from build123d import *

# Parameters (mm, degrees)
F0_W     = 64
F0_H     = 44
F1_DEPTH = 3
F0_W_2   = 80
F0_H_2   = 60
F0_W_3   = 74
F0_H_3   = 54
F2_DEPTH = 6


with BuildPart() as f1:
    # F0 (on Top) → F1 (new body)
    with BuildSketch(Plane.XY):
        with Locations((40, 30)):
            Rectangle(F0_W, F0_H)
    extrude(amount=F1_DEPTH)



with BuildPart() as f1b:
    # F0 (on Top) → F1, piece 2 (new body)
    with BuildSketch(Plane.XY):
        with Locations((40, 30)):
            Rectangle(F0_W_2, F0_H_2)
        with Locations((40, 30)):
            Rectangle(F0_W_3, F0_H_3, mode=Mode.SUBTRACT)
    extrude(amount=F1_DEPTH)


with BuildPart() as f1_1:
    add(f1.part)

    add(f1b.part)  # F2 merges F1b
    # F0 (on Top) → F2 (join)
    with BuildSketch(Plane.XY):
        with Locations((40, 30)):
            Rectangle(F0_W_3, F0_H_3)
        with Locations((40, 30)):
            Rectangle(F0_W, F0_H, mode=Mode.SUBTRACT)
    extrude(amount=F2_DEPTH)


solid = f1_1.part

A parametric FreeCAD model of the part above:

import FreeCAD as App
import Part
import Sketcher
Q = App.Units.Quantity

doc = App.newDocument("Part")
body = doc.addObject("PartDesign::Body", "Body")

sketch1 = body.newObject("Sketcher::SketchObject", "Sketch")
sketch1.AttachmentSupport = (doc.getObject("XY_Plane"), [""])
sketch1.MapMode = "FlatFace"
sketch1.addGeometry([
    Part.LineSegment(App.Vector(8, 52, 0), App.Vector(8, 8, 0)),
    Part.LineSegment(App.Vector(8, 8, 0), App.Vector(72, 8, 0)),
    Part.LineSegment(App.Vector(72, 8, 0), App.Vector(72, 52, 0)),
    Part.LineSegment(App.Vector(72, 52, 0), App.Vector(8, 52, 0)),
], False)
sketch1.addConstraint([
    Sketcher.Constraint("Coincident", 0, 2, 1, 1),
    Sketcher.Constraint("Coincident", 1, 2, 2, 1),
    Sketcher.Constraint("Coincident", 2, 2, 3, 1),
    Sketcher.Constraint("Coincident", 3, 2, 0, 1),
    Sketcher.Constraint("Vertical", 0),
    Sketcher.Constraint("Horizontal", 1),
    Sketcher.Constraint("Vertical", 2),
    Sketcher.Constraint("Horizontal", 3),
    Sketcher.Constraint("DistanceX", 1, 1, 1, 2, Q("64 mm")),
    Sketcher.Constraint("DistanceY", 0, 2, 0, 1, Q("44 mm")),
    Sketcher.Constraint("DistanceX", -1, 1, 0, 2, Q("8 mm")),
    Sketcher.Constraint("DistanceY", -1, 1, 0, 2, Q("8 mm")),
])
pad1 = body.newObject("PartDesign::Pad", "Pad")
pad1.Profile = sketch1
pad1.Length = 3
body2 = doc.addObject("PartDesign::Body", "Body001")

sketch2 = body2.newObject("Sketcher::SketchObject", "Sketch001")
sketch2.AttachmentSupport = (doc.getObject("XY_Plane001"), [""])
sketch2.MapMode = "FlatFace"
sketch2.addGeometry([
    Part.LineSegment(App.Vector(0, 60, 0), App.Vector(0, 0, 0)),
    Part.LineSegment(App.Vector(0, 0, 0), App.Vector(80, 0, 0)),
    Part.LineSegment(App.Vector(80, 0, 0), App.Vector(80, 60, 0)),
    Part.LineSegment(App.Vector(80, 60, 0), App.Vector(0, 60, 0)),
    Part.LineSegment(App.Vector(77, 3, 0), App.Vector(3, 3, 0)),
    Part.LineSegment(App.Vector(3, 3, 0), App.Vector(3, 57, 0)),
    Part.LineSegment(App.Vector(3, 57, 0), App.Vector(77, 57, 0)),
    Part.LineSegment(App.Vector(77, 57, 0), App.Vector(77, 3, 0)),
], False)
sketch2.addConstraint([
    Sketcher.Constraint("Coincident", 0, 2, 1, 1),
    Sketcher.Constraint("Coincident", 1, 2, 2, 1),
    Sketcher.Constraint("Coincident", 2, 2, 3, 1),
    Sketcher.Constraint("Coincident", 3, 2, 0, 1),
    Sketcher.Constraint("Coincident", 4, 2, 5, 1),
    Sketcher.Constraint("Coincident", 5, 2, 6, 1),
    Sketcher.Constraint("Coincident", 6, 2, 7, 1),
    Sketcher.Constraint("Coincident", 7, 2, 4, 1),
    Sketcher.Constraint("Vertical", 0),
    Sketcher.Constraint("Horizontal", 1),
    Sketcher.Constraint("Vertical", 2),
    Sketcher.Constraint("Horizontal", 3),
    Sketcher.Constraint("Horizontal", 4),
    Sketcher.Constraint("Vertical", 5),
    Sketcher.Constraint("Horizontal", 6),
    Sketcher.Constraint("Vertical", 7),
    Sketcher.Constraint("Coincident", 0, 2, -1, 1),
    Sketcher.Constraint("DistanceX", 1, 1, 1, 2, Q("80 mm")),
    Sketcher.Constraint("DistanceX", 4, 2, 4, 1, Q("74 mm")),
    Sketcher.Constraint("DistanceY", 0, 2, 0, 1, Q("60 mm")),
    Sketcher.Constraint("DistanceY", 5, 1, 5, 2, Q("54 mm")),
    Sketcher.Constraint("DistanceX", -1, 1, 4, 2, Q("3 mm")),
    Sketcher.Constraint("DistanceY", -1, 1, 4, 2, Q("3 mm")),
])
pad2 = body2.newObject("PartDesign::Pad", "Pad001")
pad2.Profile = sketch2
pad2.Length = 3
body.AllowCompound = True
doc.recompute()

boolean = body.newObject("PartDesign::Boolean", "Boolean")
boolean.Type = "Fuse"
boolean.addObjects([body2])

sketch3 = body.newObject("Sketcher::SketchObject", "Sketch002")
sketch3.AttachmentSupport = (doc.getObject("XY_Plane"), [""])
sketch3.MapMode = "FlatFace"
sketch3.addGeometry([
    Part.LineSegment(App.Vector(3, 57, 0), App.Vector(3, 3, 0)),
    Part.LineSegment(App.Vector(3, 3, 0), App.Vector(77, 3, 0)),
    Part.LineSegment(App.Vector(77, 3, 0), App.Vector(77, 57, 0)),
    Part.LineSegment(App.Vector(77, 57, 0), App.Vector(3, 57, 0)),
    Part.LineSegment(App.Vector(72, 8, 0), App.Vector(8, 8, 0)),
    Part.LineSegment(App.Vector(8, 8, 0), App.Vector(8, 52, 0)),
    Part.LineSegment(App.Vector(8, 52, 0), App.Vector(72, 52, 0)),
    Part.LineSegment(App.Vector(72, 52, 0), App.Vector(72, 8, 0)),
], False)
sketch3.addConstraint([
    Sketcher.Constraint("Coincident", 0, 2, 1, 1),
    Sketcher.Constraint("Coincident", 1, 2, 2, 1),
    Sketcher.Constraint("Coincident", 2, 2, 3, 1),
    Sketcher.Constraint("Coincident", 3, 2, 0, 1),
    Sketcher.Constraint("Coincident", 4, 2, 5, 1),
    Sketcher.Constraint("Coincident", 5, 2, 6, 1),
    Sketcher.Constraint("Coincident", 6, 2, 7, 1),
    Sketcher.Constraint("Coincident", 7, 2, 4, 1),
    Sketcher.Constraint("Vertical", 0),
    Sketcher.Constraint("Horizontal", 1),
    Sketcher.Constraint("Vertical", 2),
    Sketcher.Constraint("Horizontal", 3),
    Sketcher.Constraint("Horizontal", 4),
    Sketcher.Constraint("Vertical", 5),
    Sketcher.Constraint("Horizontal", 6),
    Sketcher.Constraint("Vertical", 7),
    Sketcher.Constraint("DistanceX", 1, 1, 1, 2, Q("74 mm")),
    Sketcher.Constraint("DistanceX", 4, 2, 4, 1, Q("64 mm")),
    Sketcher.Constraint("DistanceY", 0, 2, 0, 1, Q("54 mm")),
    Sketcher.Constraint("DistanceY", 5, 1, 5, 2, Q("44 mm")),
    Sketcher.Constraint("DistanceX", -1, 1, 0, 2, Q("3 mm")),
    Sketcher.Constraint("DistanceY", -1, 1, 0, 2, Q("3 mm")),
    Sketcher.Constraint("DistanceX", -1, 1, 4, 2, Q("8 mm")),
    Sketcher.Constraint("DistanceY", -1, 1, 4, 2, Q("8 mm")),
])
pad3 = body.newObject("PartDesign::Pad", "Pad002")
pad3.Profile = sketch3
pad3.Length = 6

doc.recompute()
